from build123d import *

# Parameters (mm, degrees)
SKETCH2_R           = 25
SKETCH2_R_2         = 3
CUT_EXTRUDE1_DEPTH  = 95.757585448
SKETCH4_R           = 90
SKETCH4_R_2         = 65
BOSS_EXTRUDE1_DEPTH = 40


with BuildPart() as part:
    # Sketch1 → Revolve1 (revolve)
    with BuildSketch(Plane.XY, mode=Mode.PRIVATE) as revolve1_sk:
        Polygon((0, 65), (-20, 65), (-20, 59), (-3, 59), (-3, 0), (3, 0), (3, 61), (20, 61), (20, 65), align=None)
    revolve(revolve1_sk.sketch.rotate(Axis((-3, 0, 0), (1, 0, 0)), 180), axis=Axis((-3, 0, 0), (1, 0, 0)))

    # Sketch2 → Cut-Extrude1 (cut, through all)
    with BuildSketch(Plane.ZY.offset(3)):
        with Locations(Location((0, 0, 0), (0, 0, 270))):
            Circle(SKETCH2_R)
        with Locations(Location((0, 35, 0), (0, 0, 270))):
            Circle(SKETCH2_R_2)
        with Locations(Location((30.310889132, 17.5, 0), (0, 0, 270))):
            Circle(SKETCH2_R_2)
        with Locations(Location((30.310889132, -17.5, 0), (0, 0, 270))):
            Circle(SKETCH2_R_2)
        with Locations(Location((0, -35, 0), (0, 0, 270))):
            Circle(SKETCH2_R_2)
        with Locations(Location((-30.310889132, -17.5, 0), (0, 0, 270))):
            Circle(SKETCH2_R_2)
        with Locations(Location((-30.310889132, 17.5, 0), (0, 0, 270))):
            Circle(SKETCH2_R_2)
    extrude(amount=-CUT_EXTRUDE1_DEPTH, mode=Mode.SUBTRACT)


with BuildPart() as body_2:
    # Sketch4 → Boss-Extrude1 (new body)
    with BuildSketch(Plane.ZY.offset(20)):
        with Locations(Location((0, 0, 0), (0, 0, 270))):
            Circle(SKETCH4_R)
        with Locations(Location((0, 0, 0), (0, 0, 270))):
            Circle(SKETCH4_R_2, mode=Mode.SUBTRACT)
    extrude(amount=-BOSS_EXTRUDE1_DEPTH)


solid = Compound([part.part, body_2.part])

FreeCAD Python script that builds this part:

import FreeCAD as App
import Part
import Sketcher

V = App.Vector
Q = App.Units.Quantity

doc = App.newDocument("Part")
params = doc.addObject("Spreadsheet::Sheet", "Params")
for row, (alias, value) in enumerate([
    ("sketch1_width", "17 mm"),
    ("sketch1_width2", "6 mm"),
    ("sketch1_height", "59 mm"),
    ("sketch1_height2", "61 mm"),
    ("revolution_angle", "360 deg"),
    ("sketch2_diameter", "50 mm"),
    ("sketch2_diameter2", "6 mm"),
    ("sketch3_diameter", "180 mm"),
    ("sketch3_diameter2", "130 mm"),
    ("pad1_length", "40 mm"),
], start=1):
    params.set(f"A{row}", alias)
    params.set(f"B{row}", "=" + value)
    params.setAlias(f"B{row}", alias)

body = doc.addObject("PartDesign::Body", "Body")

# Sketch on XY plane
sketch1 = doc.addObject("Sketcher::SketchObject", "Sketch")
body.addObject(sketch1)
sketch1.AttachmentSupport = (doc.XY_Plane, [""])
sketch1.MapMode = "FlatFace"
sketch1.addGeometry([
    Part.LineSegment(V(-20, 65, 0), V(-20, 59, 0)),  # 0
    Part.LineSegment(V(-20, 59, 0), V(-3, 59, 0)),  # 1
    Part.LineSegment(V(-3, 59, 0), V(-3, 0, 0)),  # 2
    Part.LineSegment(V(-3, 0, 0), V(3, 0, 0)),  # 3
    Part.LineSegment(V(3, 0, 0), V(3, 61, 0)),  # 4
    Part.LineSegment(V(3, 61, 0), V(20, 61, 0)),  # 5
    Part.LineSegment(V(20, 61, 0), V(20, 65, 0)),  # 6
    Part.LineSegment(V(20, 65, 0), V(-20, 65, 0)),  # 7
], False)
sketch1.addConstraint([
    Sketcher.Constraint("Coincident", 0, 2, 1, 1),
    Sketcher.Constraint("Coincident", 1, 2, 2, 1),
    Sketcher.Constraint("Coincident", 2, 2, 3, 1),
    Sketcher.Constraint("Coincident", 3, 2, 4, 1),
    Sketcher.Constraint("Coincident", 4, 2, 5, 1),
    Sketcher.Constraint("Coincident", 5, 2, 6, 1),
    Sketcher.Constraint("Coincident", 6, 2, 7, 1),
    Sketcher.Constraint("Coincident", 7, 2, 0, 1),
    Sketcher.Constraint("Vertical", 0),
    Sketcher.Constraint("Horizontal", 1),
    Sketcher.Constraint("Vertical", 2),
    Sketcher.Constraint("Horizontal", 3),
    Sketcher.Constraint("Vertical", 4),
    Sketcher.Constraint("Horizontal", 5),
    Sketcher.Constraint("Vertical", 6),
    Sketcher.Constraint("Horizontal", 7),
    Sketcher.Constraint("Symmetric", 2, 2, 3, 2, -1, 1),
    Sketcher.Constraint("Equal", 1, 5),
    Sketcher.Constraint("Equal", 3, 0),
    Sketcher.Constraint("DistanceX", 1, 1, 1, 2, Q("17 mm")),
    Sketcher.Constraint("DistanceX", 3, 1, 3, 2, Q("6 mm")),
    Sketcher.Constraint("DistanceY", 2, 2, 2, 1, Q("59 mm")),
    Sketcher.Constraint("DistanceY", 4, 1, 4, 2, Q("61 mm")),
])
sketch1.setExpression("Constraints[19]", "Params.sketch1_width")
sketch1.setExpression("Constraints[20]", "Params.sketch1_width2")
sketch1.setExpression("Constraints[21]", "Params.sketch1_height")
sketch1.setExpression("Constraints[22]", "Params.sketch1_height2")
revolution = doc.addObject("PartDesign::Revolution", "Revolution")
body.addObject(revolution)
revolution.Profile = sketch1
revolution.ReferenceAxis = (sketch1, ["H_Axis"])
revolution.setExpression("Angle", "Params.revolution_angle")

# Sketch on YZ plane
sketch2 = doc.addObject("Sketcher::SketchObject", "Sketch001")
body.addObject(sketch2)
sketch2.AttachmentSupport = (doc.YZ_Plane, [""])
sketch2.MapMode = "FlatFace"
sketch2.AttachmentOffset = App.Placement(V(0, 0, -3), App.Rotation())
sketch2.addGeometry([
    Part.Circle(V(0, 0, 0), V(0, 0, 1), 25),  # 0
    Part.Circle(V(35, 0, 0), V(0, 0, 1), 3),  # 1
    Part.Circle(V(17.5, 30.3, 0), V(0, 0, 1), 3),  # 2
    Part.Circle(V(-17.5, 30.3, 0), V(0, 0, 1), 3),  # 3
    Part.Circle(V(-35, 0, 0), V(0, 0, 1), 3),  # 4
    Part.Circle(V(-17.5, -30.3, 0), V(0, 0, 1), 3),  # 5
    Part.Circle(V(17.5, -30.3, 0), V(0, 0, 1), 3),  # 6
], False)
sketch2.addConstraint([
    Sketcher.Constraint("Coincident", 0, 3, -1, 1),
    Sketcher.Constraint("Equal", 1, 2),
    Sketcher.Constraint("Equal", 2, 3),
    Sketcher.Constraint("Equal", 3, 4),
    Sketcher.Constraint("Equal", 4, 5),
    Sketcher.Constraint("Equal", 5, 6),
    Sketcher.Constraint("Symmetric", 1, 3, 4, 3, -1, 1),
    Sketcher.Constraint("Symmetric", 2, 3, 5, 3, -1, 1),
    Sketcher.Constraint("Symmetric", 3, 3, 6, 3, -1, 1),
    Sketcher.Constraint("Symmetric", 2, 3, 3, 3, -2),
    Sketcher.Constraint("PointOnObject", 1, 3, -1),
    Sketcher.Constraint("Diameter", 0, Q("50 mm")),
    Sketcher.Constraint("Diameter", 1, Q("6 mm")),
    Sketcher.Constraint("DistanceX", -1, 1, 1, 3, Q("35 mm")),
    Sketcher.Constraint("DistanceX", 3, 3, 2, 3, Q("35 mm")),
    Sketcher.Constraint("DistanceY", -1, 1, 2, 3, Q("30.310889 mm")),
])
sketch2.setExpression("Constraints[11]", "Params.sketch2_diameter")
sketch2.setExpression("Constraints[12]", "Params.sketch2_diameter2")
pocket1 = doc.addObject("PartDesign::Pocket", "Pocket")
body.addObject(pocket1)
pocket1.Profile = sketch2
pocket1.Type = "ThroughAll"
pocket1.Reversed = True
body2 = doc.addObject("PartDesign::Body", "Body001")

# Sketch on YZ plane
sketch3 = doc.addObject("Sketcher::SketchObject", "Sketch002")
body2.addObject(sketch3)
sketch3.AttachmentSupport = (doc.getObject("YZ_Plane001"), [""])
sketch3.MapMode = "FlatFace"
sketch3.AttachmentOffset = App.Placement(V(0, 0, -20), App.Rotation())
sketch3.addGeometry([
    Part.Circle(V(0, 0, 0), V(0, 0, 1), 90),
    Part.Circle(V(0, 0, 0), V(0, 0, 1), 65),
], False)
sketch3.addConstraint([
    Sketcher.Constraint("Coincident", 0, 3, -1, 1),
    Sketcher.Constraint("Coincident", 1, 3, -1, 1),
    Sketcher.Constraint("Diameter", 0, Q("180 mm")),
    Sketcher.Constraint("Diameter", 1, Q("130 mm")),
])
sketch3.setExpression("Constraints[2]", "Params.sketch3_diameter")
sketch3.setExpression("Constraints[3]", "Params.sketch3_diameter2")
pad1 = doc.addObject("PartDesign::Pad", "Pad")
body2.addObject(pad1)
pad1.Profile = sketch3
pad1.setExpression("Length", "Params.pad1_length")

doc.recompute()
